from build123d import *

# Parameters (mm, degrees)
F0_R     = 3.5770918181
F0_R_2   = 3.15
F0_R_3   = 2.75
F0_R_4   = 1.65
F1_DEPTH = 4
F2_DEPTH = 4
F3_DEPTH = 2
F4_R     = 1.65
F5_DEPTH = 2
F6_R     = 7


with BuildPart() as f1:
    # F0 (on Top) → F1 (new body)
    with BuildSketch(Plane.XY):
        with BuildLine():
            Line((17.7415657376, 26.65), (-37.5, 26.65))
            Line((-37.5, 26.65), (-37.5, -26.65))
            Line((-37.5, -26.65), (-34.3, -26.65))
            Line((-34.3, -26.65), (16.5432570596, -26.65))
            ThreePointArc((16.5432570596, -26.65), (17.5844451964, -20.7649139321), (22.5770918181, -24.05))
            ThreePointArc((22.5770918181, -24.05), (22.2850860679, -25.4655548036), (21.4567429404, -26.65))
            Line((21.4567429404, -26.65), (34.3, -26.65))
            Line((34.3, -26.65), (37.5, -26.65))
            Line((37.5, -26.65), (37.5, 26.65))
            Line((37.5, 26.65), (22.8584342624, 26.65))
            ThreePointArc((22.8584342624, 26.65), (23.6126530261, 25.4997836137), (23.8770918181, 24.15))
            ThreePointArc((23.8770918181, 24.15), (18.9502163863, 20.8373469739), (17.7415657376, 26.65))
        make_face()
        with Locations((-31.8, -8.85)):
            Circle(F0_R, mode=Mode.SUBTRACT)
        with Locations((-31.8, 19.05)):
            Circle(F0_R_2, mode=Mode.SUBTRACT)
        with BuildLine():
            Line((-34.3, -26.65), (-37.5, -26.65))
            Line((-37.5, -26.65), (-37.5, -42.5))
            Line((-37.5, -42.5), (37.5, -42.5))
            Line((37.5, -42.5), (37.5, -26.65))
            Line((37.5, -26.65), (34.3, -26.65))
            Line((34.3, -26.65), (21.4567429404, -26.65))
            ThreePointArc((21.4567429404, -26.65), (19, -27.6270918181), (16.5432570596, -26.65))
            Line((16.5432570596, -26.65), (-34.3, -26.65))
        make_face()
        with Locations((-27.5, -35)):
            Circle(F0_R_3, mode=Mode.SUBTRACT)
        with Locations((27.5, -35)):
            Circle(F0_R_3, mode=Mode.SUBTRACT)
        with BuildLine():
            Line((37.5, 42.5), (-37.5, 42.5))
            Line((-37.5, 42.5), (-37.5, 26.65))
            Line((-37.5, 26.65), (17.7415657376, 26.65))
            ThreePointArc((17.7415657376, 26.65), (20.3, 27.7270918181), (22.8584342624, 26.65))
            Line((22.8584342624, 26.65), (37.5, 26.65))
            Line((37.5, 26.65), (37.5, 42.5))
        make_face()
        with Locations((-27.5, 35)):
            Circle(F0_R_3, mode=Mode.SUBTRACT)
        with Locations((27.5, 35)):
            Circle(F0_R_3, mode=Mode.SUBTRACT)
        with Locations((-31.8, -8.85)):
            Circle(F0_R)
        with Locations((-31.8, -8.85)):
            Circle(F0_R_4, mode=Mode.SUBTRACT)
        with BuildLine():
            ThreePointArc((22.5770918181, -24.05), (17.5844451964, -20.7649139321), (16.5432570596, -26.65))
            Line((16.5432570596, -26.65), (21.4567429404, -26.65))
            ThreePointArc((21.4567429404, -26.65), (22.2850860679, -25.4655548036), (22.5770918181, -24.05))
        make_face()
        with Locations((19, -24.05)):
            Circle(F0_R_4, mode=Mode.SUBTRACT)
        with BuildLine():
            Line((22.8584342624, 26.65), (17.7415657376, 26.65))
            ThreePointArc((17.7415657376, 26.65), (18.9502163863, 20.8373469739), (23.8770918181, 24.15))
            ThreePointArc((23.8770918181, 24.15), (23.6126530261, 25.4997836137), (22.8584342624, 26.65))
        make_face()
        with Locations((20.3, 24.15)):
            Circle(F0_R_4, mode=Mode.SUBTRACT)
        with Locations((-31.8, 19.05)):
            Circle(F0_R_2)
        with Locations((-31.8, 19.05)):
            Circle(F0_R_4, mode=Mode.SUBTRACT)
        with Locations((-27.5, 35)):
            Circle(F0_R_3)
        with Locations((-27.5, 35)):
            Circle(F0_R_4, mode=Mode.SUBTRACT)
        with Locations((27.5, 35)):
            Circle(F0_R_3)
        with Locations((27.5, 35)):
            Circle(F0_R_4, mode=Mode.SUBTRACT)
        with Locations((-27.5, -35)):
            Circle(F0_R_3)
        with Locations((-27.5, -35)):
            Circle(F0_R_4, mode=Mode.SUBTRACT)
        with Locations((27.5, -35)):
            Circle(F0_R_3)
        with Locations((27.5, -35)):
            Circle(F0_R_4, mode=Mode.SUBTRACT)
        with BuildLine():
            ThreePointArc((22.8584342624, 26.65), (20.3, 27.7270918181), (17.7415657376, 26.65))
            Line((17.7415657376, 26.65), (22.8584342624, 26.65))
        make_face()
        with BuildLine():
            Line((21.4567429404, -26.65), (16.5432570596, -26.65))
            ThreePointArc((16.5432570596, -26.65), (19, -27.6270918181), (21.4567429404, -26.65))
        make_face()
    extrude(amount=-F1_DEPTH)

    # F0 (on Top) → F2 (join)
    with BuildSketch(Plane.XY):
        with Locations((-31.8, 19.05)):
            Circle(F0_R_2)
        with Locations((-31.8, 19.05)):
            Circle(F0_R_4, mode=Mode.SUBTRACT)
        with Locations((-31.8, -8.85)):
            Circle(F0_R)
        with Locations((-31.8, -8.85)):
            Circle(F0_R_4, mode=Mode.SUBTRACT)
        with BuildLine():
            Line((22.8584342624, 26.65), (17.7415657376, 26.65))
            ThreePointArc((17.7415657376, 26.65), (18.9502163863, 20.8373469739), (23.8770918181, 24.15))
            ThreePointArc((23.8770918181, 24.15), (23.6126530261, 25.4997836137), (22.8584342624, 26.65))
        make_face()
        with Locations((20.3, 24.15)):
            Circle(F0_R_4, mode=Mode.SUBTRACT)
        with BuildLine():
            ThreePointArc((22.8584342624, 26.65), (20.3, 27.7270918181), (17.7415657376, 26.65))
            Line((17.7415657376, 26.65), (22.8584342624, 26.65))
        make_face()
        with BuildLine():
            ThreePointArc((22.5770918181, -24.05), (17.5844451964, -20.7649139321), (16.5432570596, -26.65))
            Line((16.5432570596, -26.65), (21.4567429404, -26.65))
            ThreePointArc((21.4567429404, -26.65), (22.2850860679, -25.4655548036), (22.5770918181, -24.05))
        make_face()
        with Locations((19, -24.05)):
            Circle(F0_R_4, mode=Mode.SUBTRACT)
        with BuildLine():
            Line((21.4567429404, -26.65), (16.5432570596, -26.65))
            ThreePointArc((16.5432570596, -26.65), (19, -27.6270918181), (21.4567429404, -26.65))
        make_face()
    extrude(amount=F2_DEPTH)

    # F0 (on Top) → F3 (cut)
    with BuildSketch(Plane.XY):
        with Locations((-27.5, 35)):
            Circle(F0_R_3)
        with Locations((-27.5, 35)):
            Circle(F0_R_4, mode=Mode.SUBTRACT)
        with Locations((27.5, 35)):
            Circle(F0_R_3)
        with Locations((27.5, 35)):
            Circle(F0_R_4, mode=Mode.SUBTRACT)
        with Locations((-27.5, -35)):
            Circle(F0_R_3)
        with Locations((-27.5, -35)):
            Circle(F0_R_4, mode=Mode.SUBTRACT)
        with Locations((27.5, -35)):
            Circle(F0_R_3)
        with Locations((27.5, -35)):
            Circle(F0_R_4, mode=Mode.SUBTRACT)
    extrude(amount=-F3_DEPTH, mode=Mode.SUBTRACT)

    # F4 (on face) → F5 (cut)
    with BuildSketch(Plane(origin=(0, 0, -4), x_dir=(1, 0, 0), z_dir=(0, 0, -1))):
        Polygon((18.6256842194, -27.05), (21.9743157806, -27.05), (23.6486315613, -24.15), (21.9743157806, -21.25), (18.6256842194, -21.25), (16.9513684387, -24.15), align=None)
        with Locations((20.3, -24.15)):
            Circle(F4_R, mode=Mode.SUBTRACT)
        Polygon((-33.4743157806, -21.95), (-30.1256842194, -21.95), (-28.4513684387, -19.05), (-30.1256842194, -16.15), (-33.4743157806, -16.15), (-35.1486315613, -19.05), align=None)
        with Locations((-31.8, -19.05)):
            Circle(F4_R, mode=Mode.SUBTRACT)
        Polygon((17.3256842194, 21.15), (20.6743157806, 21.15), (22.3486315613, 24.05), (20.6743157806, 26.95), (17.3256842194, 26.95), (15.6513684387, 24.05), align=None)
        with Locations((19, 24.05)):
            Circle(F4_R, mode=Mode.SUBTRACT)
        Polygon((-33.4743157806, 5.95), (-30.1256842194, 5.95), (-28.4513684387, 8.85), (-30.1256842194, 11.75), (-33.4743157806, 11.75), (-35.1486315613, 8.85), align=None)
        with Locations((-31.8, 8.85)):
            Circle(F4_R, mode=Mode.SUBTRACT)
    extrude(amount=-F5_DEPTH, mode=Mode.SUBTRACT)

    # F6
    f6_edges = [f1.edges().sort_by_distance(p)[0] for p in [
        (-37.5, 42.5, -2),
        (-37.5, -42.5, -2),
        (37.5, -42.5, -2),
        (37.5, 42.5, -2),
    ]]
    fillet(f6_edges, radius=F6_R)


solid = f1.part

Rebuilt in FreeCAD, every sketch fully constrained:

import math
import FreeCAD as App
import Part
import Sketcher
from FreeCAD import Vector
Q = App.Units.Quantity


def edges_at(feature, points):
    """Names of the edges that pass closest to the given points."""
    edges = feature.Shape.Edges
    near = lambda p: min(range(len(edges)), key=lambda i: edges[i].distToShape(Part.Vertex(*p))[0])
    return sorted({f"Edge{near(p) + 1}" for p in points})


def add_polygon(sketch, points):
    """Adds a closed chain of lines whose ends are joined by coincident constraints."""
    first, n = sketch.GeometryCount, len(points)
    for a, b in zip(points, points[1:] + points[:1]):
        sketch.addGeometry(Part.LineSegment(App.Vector(*a, 0), App.Vector(*b, 0)), False)
    for i in range(n):
        sketch.addConstraint(Sketcher.Constraint("Coincident", first + i, 2, first + (i + 1) % n, 1))

doc = App.newDocument("Part")
params = doc.addObject("Spreadsheet::Sheet", "Params")
for row, (alias, value) in enumerate([
    ("sketch1_diameter", "3.3 mm"),
    ("sketch1_width", "75 mm"),
    ("sketch1_height", "85 mm"),
    ("pad1_length", "4 mm"),
    ("sketch2_diameter", "6.3 mm"),
    ("sketch2_diameter2", "3.3 mm"),
    ("sketch2_height", "2.5 mm"),
    ("sketch2_height2", "2.6 mm"),
    ("pad2_length", "4 mm"),
    ("sketch3_diameter", "5.5 mm"),
    ("sketch3_diameter2", "3.3 mm"),
    ("pocket1_length", "2 mm"),
    ("sketch4_diameter", "3.3 mm"),
    ("pocket2_length", "2 mm"),
    ("fillet_radius", "7 mm"),
], start=1):
    params.set(f"A{row}", alias)
    params.set(f"B{row}", "=" + value)
    params.setAlias(f"B{row}", alias)

body = doc.addObject("PartDesign::Body", "Body")

# Sketch on XY plane
sketch1 = body.newObject("Sketcher::SketchObject", "Sketch")
sketch1.AttachmentSupport = (doc.getObject("XY_Plane"), [""])
sketch1.MapMode = "FlatFace"
add_polygon(sketch1, [(-37.5, -42.5), (37.5, -42.5), (37.5, 42.5), (-37.5, 42.5)])  # lines 0-3
sketch1.addGeometry(Part.Circle(Vector(-27.5, -35, 0), Vector(0, 0, 1), 1.6), False)  # 4
sketch1.addGeometry(Part.Circle(Vector(-31.8, -8.8, 0), Vector(0, 0, 1), 1.6), False)  # 5
sketch1.addGeometry(Part.Circle(Vector(27.5, -35, 0), Vector(0, 0, 1), 1.6), False)  # 6
sketch1.addGeometry(Part.Circle(Vector(19, -24.1, 0), Vector(0, 0, 1), 1.6), False)  # 7
sketch1.addGeometry(Part.Circle(Vector(-31.8, 19.1, 0), Vector(0, 0, 1), 1.6), False)  # 8
sketch1.addGeometry(Part.Circle(Vector(-27.5, 35, 0), Vector(0, 0, 1), 1.6), False)  # 9
sketch1.addGeometry(Part.Circle(Vector(20.3, 24.1, 0), Vector(0, 0, 1), 1.6), False)  # 10
sketch1.addGeometry(Part.Circle(Vector(27.5, 35, 0), Vector(0, 0, 1), 1.6), False)  # 11
sketch1.addConstraint([
    Sketcher.Constraint("Horizontal", 0),
    Sketcher.Constraint("Vertical", 1),
    Sketcher.Constraint("Horizontal", 2),
    Sketcher.Constraint("Vertical", 3),
    Sketcher.Constraint("Equal", 4, 5),
    Sketcher.Constraint("Equal", 5, 6),
    Sketcher.Constraint("Equal", 6, 7),
    Sketcher.Constraint("Equal", 7, 8),
    Sketcher.Constraint("Equal", 8, 9),
    Sketcher.Constraint("Equal", 9, 10),
    Sketcher.Constraint("Equal", 10, 11),
    Sketcher.Constraint("Symmetric", 6, 3, 9, 3, -1, 1),
    Sketcher.Constraint("Symmetric", 4, 3, 11, 3, -1, 1),
    Sketcher.Constraint("Symmetric", 0, 2, 2, 2, -1, 1),
    Sketcher.Constraint("Symmetric", 4, 3, 6, 3, -2),
    Sketcher.Constraint("Vertical", 5, 3, 8, 3),
    Sketcher.Constraint("Diameter", 4, Q("3.3 mm")),
    Sketcher.Constraint("DistanceX", 0, 1, 0, 2, Q("75 mm")),
    Sketcher.Constraint("DistanceY", 1, 1, 1, 2, Q("85 mm")),
    Sketcher.Constraint("DistanceY", 4, 3, -1, 1, Q("35 mm")),
    Sketcher.Constraint("DistanceX", -1, 1, 7, 3, Q("19 mm")),
    Sketcher.Constraint("DistanceX", 4, 3, 6, 3, Q("55 mm")),
    Sketcher.Constraint("DistanceY", 5, 3, 10, 3, Q("33 mm")),
    Sketcher.Constraint("DistanceX", 5, 3, -1, 1, Q("31.8 mm")),
    Sketcher.Constraint("DistanceX", -1, 1, 10, 3, Q("20.3 mm")),
    Sketcher.Constraint("DistanceY", 7, 3, 5, 3, Q("15.2 mm")),
    Sketcher.Constraint("DistanceY", 5, 3, 8, 3, Q("27.9 mm")),
    Sketcher.Constraint("DistanceY", 5, 3, -1, 1, Q("8.85 mm")),
])
sketch1.setExpression("Constraints[20]", "Params.sketch1_diameter")
sketch1.setExpression("Constraints[21]", "Params.sketch1_width")
sketch1.setExpression("Constraints[22]", "Params.sketch1_height")
pad1 = body.newObject("PartDesign::Pad", "Pad")
pad1.Profile = sketch1
pad1.setExpression("Length", "Params.pad1_length")
pad1.Reversed = True

# Sketch on XY plane
sketch2 = body.newObject("Sketcher::SketchObject", "Sketch001")
sketch2.AttachmentSupport = (doc.getObject("XY_Plane"), [""])
sketch2.MapMode = "FlatFace"
sketch2.addGeometry([
    Part.Circle(Vector(-31.8, 19.1, 0), Vector(0, 0, 1), 3.1),  # 0
    Part.Circle(Vector(-31.8, 19.1, 0), Vector(0, 0, 1), 1.6),  # 1
    Part.Circle(Vector(-31.8, -8.8, 0), Vector(0, 0, 1), 3.6),  # 2
    Part.Circle(Vector(-31.8, -8.8, 0), Vector(0, 0, 1), 1.6),  # 3
    Part.ArcOfCircle(Part.Circle(Vector(20.3, 24.1, 0), Vector(0, 0, 1), 3.6), math.radians(0), math.radians(44)),  # 4
    Part.ArcOfCircle(Part.Circle(Vector(20.3, 24.1, 0), Vector(0, 0, 1), 3.6), math.radians(44), math.radians(136)),  # 5
    Part.ArcOfCircle(Part.Circle(Vector(20.3, 24.1, 0), Vector(0, 0, 1), 3.6), math.radians(136), math.radians(360)),  # 6
    Part.Circle(Vector(20.3, 24.1, 0), Vector(0, 0, 1), 1.6),  # 7
    Part.ArcOfCircle(Part.Circle(Vector(19, -24.1, 0), Vector(0, 0, 1), 3.6), math.radians(0), math.radians(227)),  # 8
    Part.ArcOfCircle(Part.Circle(Vector(19, -24.1, 0), Vector(0, 0, 1), 3.6), math.radians(-133), math.radians(-47)),  # 9
    Part.ArcOfCircle(Part.Circle(Vector(19, -24.1, 0), Vector(0, 0, 1), 3.6), math.radians(-47), math.radians(0)),  # 10
    Part.Circle(Vector(19, -24.1, 0), Vector(0, 0, 1), 1.6),  # 11
], False)
sketch2.addConstraint([
    Sketcher.Constraint("Tangent", 4, 2, 5, 1),
    Sketcher.Constraint("Tangent", 5, 2, 6, 1),
    Sketcher.Constraint("Tangent", 6, 2, 4, 1),
    Sketcher.Constraint("Tangent", 8, 2, 9, 1),
    Sketcher.Constraint("Tangent", 9, 2, 10, 1),
    Sketcher.Constraint("Tangent", 10, 2, 8, 1),
    Sketcher.Constraint("Coincident", 1, 3, 0, 3),
    Sketcher.Constraint("Coincident", 3, 3, 2, 3),
    Sketcher.Constraint("Coincident", 7, 3, 4, 3),
    Sketcher.Constraint("Coincident", 11, 3, 8, 3),
    Sketcher.Constraint("Equal", 1, 3),
    Sketcher.Constraint("Equal", 2, 4),
    Sketcher.Constraint("Equal", 3, 7),
    Sketcher.Constraint("Equal", 6, 8),
    Sketcher.Constraint("Equal", 7, 11),
    Sketcher.Constraint("Horizontal", 4, 2, 5, 2),
    Sketcher.Constraint("Horizontal", 7, 3, 6, 2),
    Sketcher.Constraint("Horizontal", 8, 2, 9, 2),
    Sketcher.Constraint("Horizontal", 11, 3, 10, 2),
    Sketcher.Constraint("Vertical", 1, 3, 2, 3),
    Sketcher.Constraint("Diameter", 0, Q("6.3 mm")),
    Sketcher.Constraint("Diameter", 1, Q("3.3 mm")),
    Sketcher.Constraint("DistanceX", -1, 1, 8, 3, Q("19 mm")),
    Sketcher.Constraint("DistanceY", 2, 3, 4, 3, Q("33 mm")),
    Sketcher.Constraint("DistanceX", 0, 3, -1, 1, Q("31.8 mm")),
    Sketcher.Constraint("DistanceX", -1, 1, 4, 3, Q("20.3 mm")),
    Sketcher.Constraint("DistanceY", 2, 3, 0, 3, Q("27.9 mm")),
    Sketcher.Constraint("DistanceY", 8, 3, 4, 3, Q("48.2 mm")),
    Sketcher.Constraint("DistanceY", 4, 3, 4, 2, Q("2.5 mm")),
    Sketcher.Constraint("DistanceY", 8, 2, 8, 3, Q("2.6 mm")),
    Sketcher.Constraint("DistanceY", -1, 1, 0, 3, Q("19.05 mm")),
    Sketcher.Constraint("Radius", 4, Q("3.577092 mm")),
])
sketch2.setExpression("Constraints[20]", "Params.sketch2_diameter")
sketch2.setExpression("Constraints[21]", "Params.sketch2_diameter2")
sketch2.setExpression("Constraints[28]", "Params.sketch2_height")
sketch2.setExpression("Constraints[29]", "Params.sketch2_height2")
pad2 = body.newObject("PartDesign::Pad", "Pad001")
pad2.Profile = sketch2
pad2.setExpression("Length", "Params.pad2_length")

# Sketch on XY plane
sketch3 = body.newObject("Sketcher::SketchObject", "Sketch002")
sketch3.AttachmentSupport = (doc.getObject("XY_Plane"), [""])
sketch3.MapMode = "FlatFace"
sketch3.addGeometry([
    Part.Circle(Vector(-27.5, 35, 0), Vector(0, 0, 1), 2.8),  # 0
    Part.Circle(Vector(-27.5, 35, 0), Vector(0, 0, 1), 1.6),  # 1
    Part.Circle(Vector(27.5, 35, 0), Vector(0, 0, 1), 2.8),  # 2
    Part.Circle(Vector(27.5, 35, 0), Vector(0, 0, 1), 1.6),  # 3
    Part.Circle(Vector(-27.5, -35, 0), Vector(0, 0, 1), 2.8),  # 4
    Part.Circle(Vector(-27.5, -35, 0), Vector(0, 0, 1), 1.6),  # 5
    Part.Circle(Vector(27.5, -35, 0), Vector(0, 0, 1), 2.8),  # 6
    Part.Circle(Vector(27.5, -35, 0), Vector(0, 0, 1), 1.6),  # 7
], False)
sketch3.addConstraint([
    Sketcher.Constraint("Coincident", 1, 3, 0, 3),
    Sketcher.Constraint("Coincident", 3, 3, 2, 3),
    Sketcher.Constraint("Coincident", 5, 3, 4, 3),
    Sketcher.Constraint("Coincident", 7, 3, 6, 3),
    Sketcher.Constraint("Equal", 0, 2),
    Sketcher.Constraint("Equal", 1, 3),
    Sketcher.Constraint("Equal", 2, 4),
    Sketcher.Constraint("Equal", 3, 5),
    Sketcher.Constraint("Equal", 4, 6),
    Sketcher.Constraint("Equal", 5, 7),
    Sketcher.Constraint("Symmetric", 2, 3, 4, 3, -1, 1),
    Sketcher.Constraint("Symmetric", 0, 3, 6, 3, -1, 1),
    Sketcher.Constraint("Symmetric", 0, 3, 2, 3, -2),
    Sketcher.Constraint("Diameter", 0, Q("5.5 mm")),
    Sketcher.Constraint("Diameter", 1, Q("3.3 mm")),
    Sketcher.Constraint("DistanceY", -1, 1, 0, 3, Q("35 mm")),
    Sketcher.Constraint("DistanceX", 0, 3, 2, 3, Q("55 mm")),
])
sketch3.setExpression("Constraints[13]", "Params.sketch3_diameter")
sketch3.setExpression("Constraints[14]", "Params.sketch3_diameter2")
pocket1 = body.newObject("PartDesign::Pocket", "Pocket")
pocket1.Profile = sketch3
pocket1.setExpression("Length", "Params.pocket1_length")

# Sketch on XY plane
sketch4 = body.newObject("Sketcher::SketchObject", "Sketch003")
sketch4.AttachmentSupport = (doc.getObject("XY_Plane"), [""])
sketch4.MapMode = "FlatFace"
sketch4.AttachmentOffset = App.Placement(Vector(0, 0, -4), App.Rotation())
add_polygon(sketch4, [(18.6, 27.1), (22, 27.1), (23.6, 24.1), (22, 21.2), (18.6, 21.2), (17, 24.1)])  # lines 0-5
sketch4.addGeometry(Part.Circle(Vector(20.3, 24.1, 0), Vector(0, 0, 1), 1.6), False)  # 6
add_polygon(sketch4, [(-33.5, 21.9), (-30.1, 21.9), (-28.5, 19.1), (-30.1, 16.1), (-33.5, 16.1), (-35.1, 19.1)])  # lines 7-12
sketch4.addGeometry(Part.Circle(Vector(-31.8, 19.1, 0), Vector(0, 0, 1), 1.6), False)  # 13
add_polygon(sketch4, [(17.3, -21.1), (20.7, -21.1), (22.3, -24.1), (20.7, -26.9), (17.3, -26.9), (15.7, -24.1)])  # lines 14-19
sketch4.addGeometry(Part.Circle(Vector(19, -24.1, 0), Vector(0, 0, 1), 1.6), False)  # 20
add_polygon(sketch4, [(-33.5, -6), (-30.1, -6), (-28.5, -8.8), (-30.1, -11.8), (-33.5, -11.8), (-35.1, -8.8)])  # lines 21-26
sketch4.addGeometry(Part.Circle(Vector(-31.8, -8.8, 0), Vector(0, 0, 1), 1.6), False)  # 27
sketch4.addConstraint([
    Sketcher.Constraint("Horizontal", 0),
    Sketcher.Constraint("Horizontal", 3),
    Sketcher.Constraint("Horizontal", 7),
    Sketcher.Constraint("Horizontal", 10),
    Sketcher.Constraint("Horizontal", 14),
    Sketcher.Constraint("Horizontal", 17),
    Sketcher.Constraint("Horizontal", 21),
    Sketcher.Constraint("Horizontal", 24),
    Sketcher.Constraint("Equal", 6, 13),
    Sketcher.Constraint("Equal", 13, 20),
    Sketcher.Constraint("Equal", 20, 27),
    Sketcher.Constraint("Parallel", 1, 4),
    Sketcher.Constraint("Parallel", 2, 5),
    Sketcher.Constraint("Parallel", 4, 8),
    Sketcher.Constraint("Parallel", 5, 9),
    Sketcher.Constraint("Parallel", 8, 11),
    Sketcher.Constraint("Parallel", 9, 12),
    Sketcher.Constraint("Parallel", 11, 15),
    Sketcher.Constraint("Parallel", 12, 16),
    Sketcher.Constraint("Parallel", 15, 18),
    Sketcher.Constraint("Parallel", 16, 19),
    Sketcher.Constraint("Parallel", 18, 22),
    Sketcher.Constraint("Parallel", 19, 23),
    Sketcher.Constraint("Parallel", 22, 25),
    Sketcher.Constraint("Parallel", 23, 26),
    Sketcher.Constraint("Horizontal", 6, 3, 1, 2),
    Sketcher.Constraint("Horizontal", 1, 2, 4, 2),
    Sketcher.Constraint("Horizontal", 13, 3, 8, 2),
    Sketcher.Constraint("Horizontal", 8, 2, 11, 2),
    Sketcher.Constraint("Horizontal", 20, 3, 15, 2),
    Sketcher.Constraint("Horizontal", 15, 2, 18, 2),
    Sketcher.Constraint("Horizontal", 27, 3, 22, 2),
    Sketcher.Constraint("Horizontal", 22, 2, 25, 2),
    Sketcher.Constraint("Vertical", 13, 3, 27, 3),
    Sketcher.Constraint("Vertical", 0, 2, 2, 2),
    Sketcher.Constraint("Vertical", 3, 2, 5, 2),
    Sketcher.Constraint("Vertical", 7, 2, 9, 2),
    Sketcher.Constraint("Vertical", 14, 2, 16, 2),
    Sketcher.Constraint("Vertical", 9, 2, 21, 2),
    Sketcher.Constraint("Vertical", 8, 2, 22, 2),
    Sketcher.Constraint("Vertical", 21, 2, 23, 2),
    Sketcher.Constraint("Vertical", 12, 2, 24, 2),
    Sketcher.Constraint("Equal", 3, 7),
    Sketcher.Constraint("Equal", 10, 14),
    Sketcher.Constraint("Equal", 5, 8),
    Sketcher.Constraint("Equal", 12, 15),
    Sketcher.Constraint("Diameter", 6, Q("3.3 mm")),
    Sketcher.Constraint("Angle", 1, Q("-60 deg")),
    Sketcher.Constraint("DistanceX", -1, 1, 20, 3, Q("19 mm")),
    Sketcher.Constraint("DistanceY", 27, 3, 6, 3, Q("33 mm")),
    Sketcher.Constraint("DistanceY", 13, 3, 0, 2, Q("8 mm")),
    Sketcher.Constraint("DistanceX", -1, 1, 6, 3, Q("20.3 mm")),
    Sketcher.Constraint("DistanceX", 13, 3, -1, 1, Q("31.8 mm")),
    Sketcher.Constraint("DistanceY", 13, 3, 6, 3, Q("5.1 mm")),
    Sketcher.Constraint("DistanceY", 20, 3, 6, 3, Q("48.2 mm")),
    Sketcher.Constraint("DistanceX", 14, 2, 2, 2, Q("1.3 mm")),
    Sketcher.Constraint("DistanceY", -1, 1, 6, 3, Q("24.15 mm")),
    Sketcher.Constraint("DistanceX", 0, 1, 0, 2, Q("3.348632 mm")),
    Sketcher.Constraint("DistanceX", -1, 1, 1, 2, Q("23.648632 mm")),
    Sketcher.Constraint("DistanceX", 8, 2, -1, 1, Q("28.451368 mm")),
])
sketch4.setExpression("Constraints[70]", "Params.sketch4_diameter")
pocket2 = body.newObject("PartDesign::Pocket", "Pocket001")
pocket2.Profile = sketch4
pocket2.setExpression("Length", "Params.pocket2_length")
pocket2.Reversed = True
doc.recompute()

fillet = body.newObject("PartDesign::Fillet", "Fillet")
fillet.Base = (pocket2, edges_at(pocket2, [
    (-37.5, 42.5, -2),
    (-37.5, -42.5, -2),
    (37.5, -42.5, -2),
    (37.5, 42.5, -2),
]))
fillet.setExpression("Radius", "Params.fillet_radius")

doc.recompute()
